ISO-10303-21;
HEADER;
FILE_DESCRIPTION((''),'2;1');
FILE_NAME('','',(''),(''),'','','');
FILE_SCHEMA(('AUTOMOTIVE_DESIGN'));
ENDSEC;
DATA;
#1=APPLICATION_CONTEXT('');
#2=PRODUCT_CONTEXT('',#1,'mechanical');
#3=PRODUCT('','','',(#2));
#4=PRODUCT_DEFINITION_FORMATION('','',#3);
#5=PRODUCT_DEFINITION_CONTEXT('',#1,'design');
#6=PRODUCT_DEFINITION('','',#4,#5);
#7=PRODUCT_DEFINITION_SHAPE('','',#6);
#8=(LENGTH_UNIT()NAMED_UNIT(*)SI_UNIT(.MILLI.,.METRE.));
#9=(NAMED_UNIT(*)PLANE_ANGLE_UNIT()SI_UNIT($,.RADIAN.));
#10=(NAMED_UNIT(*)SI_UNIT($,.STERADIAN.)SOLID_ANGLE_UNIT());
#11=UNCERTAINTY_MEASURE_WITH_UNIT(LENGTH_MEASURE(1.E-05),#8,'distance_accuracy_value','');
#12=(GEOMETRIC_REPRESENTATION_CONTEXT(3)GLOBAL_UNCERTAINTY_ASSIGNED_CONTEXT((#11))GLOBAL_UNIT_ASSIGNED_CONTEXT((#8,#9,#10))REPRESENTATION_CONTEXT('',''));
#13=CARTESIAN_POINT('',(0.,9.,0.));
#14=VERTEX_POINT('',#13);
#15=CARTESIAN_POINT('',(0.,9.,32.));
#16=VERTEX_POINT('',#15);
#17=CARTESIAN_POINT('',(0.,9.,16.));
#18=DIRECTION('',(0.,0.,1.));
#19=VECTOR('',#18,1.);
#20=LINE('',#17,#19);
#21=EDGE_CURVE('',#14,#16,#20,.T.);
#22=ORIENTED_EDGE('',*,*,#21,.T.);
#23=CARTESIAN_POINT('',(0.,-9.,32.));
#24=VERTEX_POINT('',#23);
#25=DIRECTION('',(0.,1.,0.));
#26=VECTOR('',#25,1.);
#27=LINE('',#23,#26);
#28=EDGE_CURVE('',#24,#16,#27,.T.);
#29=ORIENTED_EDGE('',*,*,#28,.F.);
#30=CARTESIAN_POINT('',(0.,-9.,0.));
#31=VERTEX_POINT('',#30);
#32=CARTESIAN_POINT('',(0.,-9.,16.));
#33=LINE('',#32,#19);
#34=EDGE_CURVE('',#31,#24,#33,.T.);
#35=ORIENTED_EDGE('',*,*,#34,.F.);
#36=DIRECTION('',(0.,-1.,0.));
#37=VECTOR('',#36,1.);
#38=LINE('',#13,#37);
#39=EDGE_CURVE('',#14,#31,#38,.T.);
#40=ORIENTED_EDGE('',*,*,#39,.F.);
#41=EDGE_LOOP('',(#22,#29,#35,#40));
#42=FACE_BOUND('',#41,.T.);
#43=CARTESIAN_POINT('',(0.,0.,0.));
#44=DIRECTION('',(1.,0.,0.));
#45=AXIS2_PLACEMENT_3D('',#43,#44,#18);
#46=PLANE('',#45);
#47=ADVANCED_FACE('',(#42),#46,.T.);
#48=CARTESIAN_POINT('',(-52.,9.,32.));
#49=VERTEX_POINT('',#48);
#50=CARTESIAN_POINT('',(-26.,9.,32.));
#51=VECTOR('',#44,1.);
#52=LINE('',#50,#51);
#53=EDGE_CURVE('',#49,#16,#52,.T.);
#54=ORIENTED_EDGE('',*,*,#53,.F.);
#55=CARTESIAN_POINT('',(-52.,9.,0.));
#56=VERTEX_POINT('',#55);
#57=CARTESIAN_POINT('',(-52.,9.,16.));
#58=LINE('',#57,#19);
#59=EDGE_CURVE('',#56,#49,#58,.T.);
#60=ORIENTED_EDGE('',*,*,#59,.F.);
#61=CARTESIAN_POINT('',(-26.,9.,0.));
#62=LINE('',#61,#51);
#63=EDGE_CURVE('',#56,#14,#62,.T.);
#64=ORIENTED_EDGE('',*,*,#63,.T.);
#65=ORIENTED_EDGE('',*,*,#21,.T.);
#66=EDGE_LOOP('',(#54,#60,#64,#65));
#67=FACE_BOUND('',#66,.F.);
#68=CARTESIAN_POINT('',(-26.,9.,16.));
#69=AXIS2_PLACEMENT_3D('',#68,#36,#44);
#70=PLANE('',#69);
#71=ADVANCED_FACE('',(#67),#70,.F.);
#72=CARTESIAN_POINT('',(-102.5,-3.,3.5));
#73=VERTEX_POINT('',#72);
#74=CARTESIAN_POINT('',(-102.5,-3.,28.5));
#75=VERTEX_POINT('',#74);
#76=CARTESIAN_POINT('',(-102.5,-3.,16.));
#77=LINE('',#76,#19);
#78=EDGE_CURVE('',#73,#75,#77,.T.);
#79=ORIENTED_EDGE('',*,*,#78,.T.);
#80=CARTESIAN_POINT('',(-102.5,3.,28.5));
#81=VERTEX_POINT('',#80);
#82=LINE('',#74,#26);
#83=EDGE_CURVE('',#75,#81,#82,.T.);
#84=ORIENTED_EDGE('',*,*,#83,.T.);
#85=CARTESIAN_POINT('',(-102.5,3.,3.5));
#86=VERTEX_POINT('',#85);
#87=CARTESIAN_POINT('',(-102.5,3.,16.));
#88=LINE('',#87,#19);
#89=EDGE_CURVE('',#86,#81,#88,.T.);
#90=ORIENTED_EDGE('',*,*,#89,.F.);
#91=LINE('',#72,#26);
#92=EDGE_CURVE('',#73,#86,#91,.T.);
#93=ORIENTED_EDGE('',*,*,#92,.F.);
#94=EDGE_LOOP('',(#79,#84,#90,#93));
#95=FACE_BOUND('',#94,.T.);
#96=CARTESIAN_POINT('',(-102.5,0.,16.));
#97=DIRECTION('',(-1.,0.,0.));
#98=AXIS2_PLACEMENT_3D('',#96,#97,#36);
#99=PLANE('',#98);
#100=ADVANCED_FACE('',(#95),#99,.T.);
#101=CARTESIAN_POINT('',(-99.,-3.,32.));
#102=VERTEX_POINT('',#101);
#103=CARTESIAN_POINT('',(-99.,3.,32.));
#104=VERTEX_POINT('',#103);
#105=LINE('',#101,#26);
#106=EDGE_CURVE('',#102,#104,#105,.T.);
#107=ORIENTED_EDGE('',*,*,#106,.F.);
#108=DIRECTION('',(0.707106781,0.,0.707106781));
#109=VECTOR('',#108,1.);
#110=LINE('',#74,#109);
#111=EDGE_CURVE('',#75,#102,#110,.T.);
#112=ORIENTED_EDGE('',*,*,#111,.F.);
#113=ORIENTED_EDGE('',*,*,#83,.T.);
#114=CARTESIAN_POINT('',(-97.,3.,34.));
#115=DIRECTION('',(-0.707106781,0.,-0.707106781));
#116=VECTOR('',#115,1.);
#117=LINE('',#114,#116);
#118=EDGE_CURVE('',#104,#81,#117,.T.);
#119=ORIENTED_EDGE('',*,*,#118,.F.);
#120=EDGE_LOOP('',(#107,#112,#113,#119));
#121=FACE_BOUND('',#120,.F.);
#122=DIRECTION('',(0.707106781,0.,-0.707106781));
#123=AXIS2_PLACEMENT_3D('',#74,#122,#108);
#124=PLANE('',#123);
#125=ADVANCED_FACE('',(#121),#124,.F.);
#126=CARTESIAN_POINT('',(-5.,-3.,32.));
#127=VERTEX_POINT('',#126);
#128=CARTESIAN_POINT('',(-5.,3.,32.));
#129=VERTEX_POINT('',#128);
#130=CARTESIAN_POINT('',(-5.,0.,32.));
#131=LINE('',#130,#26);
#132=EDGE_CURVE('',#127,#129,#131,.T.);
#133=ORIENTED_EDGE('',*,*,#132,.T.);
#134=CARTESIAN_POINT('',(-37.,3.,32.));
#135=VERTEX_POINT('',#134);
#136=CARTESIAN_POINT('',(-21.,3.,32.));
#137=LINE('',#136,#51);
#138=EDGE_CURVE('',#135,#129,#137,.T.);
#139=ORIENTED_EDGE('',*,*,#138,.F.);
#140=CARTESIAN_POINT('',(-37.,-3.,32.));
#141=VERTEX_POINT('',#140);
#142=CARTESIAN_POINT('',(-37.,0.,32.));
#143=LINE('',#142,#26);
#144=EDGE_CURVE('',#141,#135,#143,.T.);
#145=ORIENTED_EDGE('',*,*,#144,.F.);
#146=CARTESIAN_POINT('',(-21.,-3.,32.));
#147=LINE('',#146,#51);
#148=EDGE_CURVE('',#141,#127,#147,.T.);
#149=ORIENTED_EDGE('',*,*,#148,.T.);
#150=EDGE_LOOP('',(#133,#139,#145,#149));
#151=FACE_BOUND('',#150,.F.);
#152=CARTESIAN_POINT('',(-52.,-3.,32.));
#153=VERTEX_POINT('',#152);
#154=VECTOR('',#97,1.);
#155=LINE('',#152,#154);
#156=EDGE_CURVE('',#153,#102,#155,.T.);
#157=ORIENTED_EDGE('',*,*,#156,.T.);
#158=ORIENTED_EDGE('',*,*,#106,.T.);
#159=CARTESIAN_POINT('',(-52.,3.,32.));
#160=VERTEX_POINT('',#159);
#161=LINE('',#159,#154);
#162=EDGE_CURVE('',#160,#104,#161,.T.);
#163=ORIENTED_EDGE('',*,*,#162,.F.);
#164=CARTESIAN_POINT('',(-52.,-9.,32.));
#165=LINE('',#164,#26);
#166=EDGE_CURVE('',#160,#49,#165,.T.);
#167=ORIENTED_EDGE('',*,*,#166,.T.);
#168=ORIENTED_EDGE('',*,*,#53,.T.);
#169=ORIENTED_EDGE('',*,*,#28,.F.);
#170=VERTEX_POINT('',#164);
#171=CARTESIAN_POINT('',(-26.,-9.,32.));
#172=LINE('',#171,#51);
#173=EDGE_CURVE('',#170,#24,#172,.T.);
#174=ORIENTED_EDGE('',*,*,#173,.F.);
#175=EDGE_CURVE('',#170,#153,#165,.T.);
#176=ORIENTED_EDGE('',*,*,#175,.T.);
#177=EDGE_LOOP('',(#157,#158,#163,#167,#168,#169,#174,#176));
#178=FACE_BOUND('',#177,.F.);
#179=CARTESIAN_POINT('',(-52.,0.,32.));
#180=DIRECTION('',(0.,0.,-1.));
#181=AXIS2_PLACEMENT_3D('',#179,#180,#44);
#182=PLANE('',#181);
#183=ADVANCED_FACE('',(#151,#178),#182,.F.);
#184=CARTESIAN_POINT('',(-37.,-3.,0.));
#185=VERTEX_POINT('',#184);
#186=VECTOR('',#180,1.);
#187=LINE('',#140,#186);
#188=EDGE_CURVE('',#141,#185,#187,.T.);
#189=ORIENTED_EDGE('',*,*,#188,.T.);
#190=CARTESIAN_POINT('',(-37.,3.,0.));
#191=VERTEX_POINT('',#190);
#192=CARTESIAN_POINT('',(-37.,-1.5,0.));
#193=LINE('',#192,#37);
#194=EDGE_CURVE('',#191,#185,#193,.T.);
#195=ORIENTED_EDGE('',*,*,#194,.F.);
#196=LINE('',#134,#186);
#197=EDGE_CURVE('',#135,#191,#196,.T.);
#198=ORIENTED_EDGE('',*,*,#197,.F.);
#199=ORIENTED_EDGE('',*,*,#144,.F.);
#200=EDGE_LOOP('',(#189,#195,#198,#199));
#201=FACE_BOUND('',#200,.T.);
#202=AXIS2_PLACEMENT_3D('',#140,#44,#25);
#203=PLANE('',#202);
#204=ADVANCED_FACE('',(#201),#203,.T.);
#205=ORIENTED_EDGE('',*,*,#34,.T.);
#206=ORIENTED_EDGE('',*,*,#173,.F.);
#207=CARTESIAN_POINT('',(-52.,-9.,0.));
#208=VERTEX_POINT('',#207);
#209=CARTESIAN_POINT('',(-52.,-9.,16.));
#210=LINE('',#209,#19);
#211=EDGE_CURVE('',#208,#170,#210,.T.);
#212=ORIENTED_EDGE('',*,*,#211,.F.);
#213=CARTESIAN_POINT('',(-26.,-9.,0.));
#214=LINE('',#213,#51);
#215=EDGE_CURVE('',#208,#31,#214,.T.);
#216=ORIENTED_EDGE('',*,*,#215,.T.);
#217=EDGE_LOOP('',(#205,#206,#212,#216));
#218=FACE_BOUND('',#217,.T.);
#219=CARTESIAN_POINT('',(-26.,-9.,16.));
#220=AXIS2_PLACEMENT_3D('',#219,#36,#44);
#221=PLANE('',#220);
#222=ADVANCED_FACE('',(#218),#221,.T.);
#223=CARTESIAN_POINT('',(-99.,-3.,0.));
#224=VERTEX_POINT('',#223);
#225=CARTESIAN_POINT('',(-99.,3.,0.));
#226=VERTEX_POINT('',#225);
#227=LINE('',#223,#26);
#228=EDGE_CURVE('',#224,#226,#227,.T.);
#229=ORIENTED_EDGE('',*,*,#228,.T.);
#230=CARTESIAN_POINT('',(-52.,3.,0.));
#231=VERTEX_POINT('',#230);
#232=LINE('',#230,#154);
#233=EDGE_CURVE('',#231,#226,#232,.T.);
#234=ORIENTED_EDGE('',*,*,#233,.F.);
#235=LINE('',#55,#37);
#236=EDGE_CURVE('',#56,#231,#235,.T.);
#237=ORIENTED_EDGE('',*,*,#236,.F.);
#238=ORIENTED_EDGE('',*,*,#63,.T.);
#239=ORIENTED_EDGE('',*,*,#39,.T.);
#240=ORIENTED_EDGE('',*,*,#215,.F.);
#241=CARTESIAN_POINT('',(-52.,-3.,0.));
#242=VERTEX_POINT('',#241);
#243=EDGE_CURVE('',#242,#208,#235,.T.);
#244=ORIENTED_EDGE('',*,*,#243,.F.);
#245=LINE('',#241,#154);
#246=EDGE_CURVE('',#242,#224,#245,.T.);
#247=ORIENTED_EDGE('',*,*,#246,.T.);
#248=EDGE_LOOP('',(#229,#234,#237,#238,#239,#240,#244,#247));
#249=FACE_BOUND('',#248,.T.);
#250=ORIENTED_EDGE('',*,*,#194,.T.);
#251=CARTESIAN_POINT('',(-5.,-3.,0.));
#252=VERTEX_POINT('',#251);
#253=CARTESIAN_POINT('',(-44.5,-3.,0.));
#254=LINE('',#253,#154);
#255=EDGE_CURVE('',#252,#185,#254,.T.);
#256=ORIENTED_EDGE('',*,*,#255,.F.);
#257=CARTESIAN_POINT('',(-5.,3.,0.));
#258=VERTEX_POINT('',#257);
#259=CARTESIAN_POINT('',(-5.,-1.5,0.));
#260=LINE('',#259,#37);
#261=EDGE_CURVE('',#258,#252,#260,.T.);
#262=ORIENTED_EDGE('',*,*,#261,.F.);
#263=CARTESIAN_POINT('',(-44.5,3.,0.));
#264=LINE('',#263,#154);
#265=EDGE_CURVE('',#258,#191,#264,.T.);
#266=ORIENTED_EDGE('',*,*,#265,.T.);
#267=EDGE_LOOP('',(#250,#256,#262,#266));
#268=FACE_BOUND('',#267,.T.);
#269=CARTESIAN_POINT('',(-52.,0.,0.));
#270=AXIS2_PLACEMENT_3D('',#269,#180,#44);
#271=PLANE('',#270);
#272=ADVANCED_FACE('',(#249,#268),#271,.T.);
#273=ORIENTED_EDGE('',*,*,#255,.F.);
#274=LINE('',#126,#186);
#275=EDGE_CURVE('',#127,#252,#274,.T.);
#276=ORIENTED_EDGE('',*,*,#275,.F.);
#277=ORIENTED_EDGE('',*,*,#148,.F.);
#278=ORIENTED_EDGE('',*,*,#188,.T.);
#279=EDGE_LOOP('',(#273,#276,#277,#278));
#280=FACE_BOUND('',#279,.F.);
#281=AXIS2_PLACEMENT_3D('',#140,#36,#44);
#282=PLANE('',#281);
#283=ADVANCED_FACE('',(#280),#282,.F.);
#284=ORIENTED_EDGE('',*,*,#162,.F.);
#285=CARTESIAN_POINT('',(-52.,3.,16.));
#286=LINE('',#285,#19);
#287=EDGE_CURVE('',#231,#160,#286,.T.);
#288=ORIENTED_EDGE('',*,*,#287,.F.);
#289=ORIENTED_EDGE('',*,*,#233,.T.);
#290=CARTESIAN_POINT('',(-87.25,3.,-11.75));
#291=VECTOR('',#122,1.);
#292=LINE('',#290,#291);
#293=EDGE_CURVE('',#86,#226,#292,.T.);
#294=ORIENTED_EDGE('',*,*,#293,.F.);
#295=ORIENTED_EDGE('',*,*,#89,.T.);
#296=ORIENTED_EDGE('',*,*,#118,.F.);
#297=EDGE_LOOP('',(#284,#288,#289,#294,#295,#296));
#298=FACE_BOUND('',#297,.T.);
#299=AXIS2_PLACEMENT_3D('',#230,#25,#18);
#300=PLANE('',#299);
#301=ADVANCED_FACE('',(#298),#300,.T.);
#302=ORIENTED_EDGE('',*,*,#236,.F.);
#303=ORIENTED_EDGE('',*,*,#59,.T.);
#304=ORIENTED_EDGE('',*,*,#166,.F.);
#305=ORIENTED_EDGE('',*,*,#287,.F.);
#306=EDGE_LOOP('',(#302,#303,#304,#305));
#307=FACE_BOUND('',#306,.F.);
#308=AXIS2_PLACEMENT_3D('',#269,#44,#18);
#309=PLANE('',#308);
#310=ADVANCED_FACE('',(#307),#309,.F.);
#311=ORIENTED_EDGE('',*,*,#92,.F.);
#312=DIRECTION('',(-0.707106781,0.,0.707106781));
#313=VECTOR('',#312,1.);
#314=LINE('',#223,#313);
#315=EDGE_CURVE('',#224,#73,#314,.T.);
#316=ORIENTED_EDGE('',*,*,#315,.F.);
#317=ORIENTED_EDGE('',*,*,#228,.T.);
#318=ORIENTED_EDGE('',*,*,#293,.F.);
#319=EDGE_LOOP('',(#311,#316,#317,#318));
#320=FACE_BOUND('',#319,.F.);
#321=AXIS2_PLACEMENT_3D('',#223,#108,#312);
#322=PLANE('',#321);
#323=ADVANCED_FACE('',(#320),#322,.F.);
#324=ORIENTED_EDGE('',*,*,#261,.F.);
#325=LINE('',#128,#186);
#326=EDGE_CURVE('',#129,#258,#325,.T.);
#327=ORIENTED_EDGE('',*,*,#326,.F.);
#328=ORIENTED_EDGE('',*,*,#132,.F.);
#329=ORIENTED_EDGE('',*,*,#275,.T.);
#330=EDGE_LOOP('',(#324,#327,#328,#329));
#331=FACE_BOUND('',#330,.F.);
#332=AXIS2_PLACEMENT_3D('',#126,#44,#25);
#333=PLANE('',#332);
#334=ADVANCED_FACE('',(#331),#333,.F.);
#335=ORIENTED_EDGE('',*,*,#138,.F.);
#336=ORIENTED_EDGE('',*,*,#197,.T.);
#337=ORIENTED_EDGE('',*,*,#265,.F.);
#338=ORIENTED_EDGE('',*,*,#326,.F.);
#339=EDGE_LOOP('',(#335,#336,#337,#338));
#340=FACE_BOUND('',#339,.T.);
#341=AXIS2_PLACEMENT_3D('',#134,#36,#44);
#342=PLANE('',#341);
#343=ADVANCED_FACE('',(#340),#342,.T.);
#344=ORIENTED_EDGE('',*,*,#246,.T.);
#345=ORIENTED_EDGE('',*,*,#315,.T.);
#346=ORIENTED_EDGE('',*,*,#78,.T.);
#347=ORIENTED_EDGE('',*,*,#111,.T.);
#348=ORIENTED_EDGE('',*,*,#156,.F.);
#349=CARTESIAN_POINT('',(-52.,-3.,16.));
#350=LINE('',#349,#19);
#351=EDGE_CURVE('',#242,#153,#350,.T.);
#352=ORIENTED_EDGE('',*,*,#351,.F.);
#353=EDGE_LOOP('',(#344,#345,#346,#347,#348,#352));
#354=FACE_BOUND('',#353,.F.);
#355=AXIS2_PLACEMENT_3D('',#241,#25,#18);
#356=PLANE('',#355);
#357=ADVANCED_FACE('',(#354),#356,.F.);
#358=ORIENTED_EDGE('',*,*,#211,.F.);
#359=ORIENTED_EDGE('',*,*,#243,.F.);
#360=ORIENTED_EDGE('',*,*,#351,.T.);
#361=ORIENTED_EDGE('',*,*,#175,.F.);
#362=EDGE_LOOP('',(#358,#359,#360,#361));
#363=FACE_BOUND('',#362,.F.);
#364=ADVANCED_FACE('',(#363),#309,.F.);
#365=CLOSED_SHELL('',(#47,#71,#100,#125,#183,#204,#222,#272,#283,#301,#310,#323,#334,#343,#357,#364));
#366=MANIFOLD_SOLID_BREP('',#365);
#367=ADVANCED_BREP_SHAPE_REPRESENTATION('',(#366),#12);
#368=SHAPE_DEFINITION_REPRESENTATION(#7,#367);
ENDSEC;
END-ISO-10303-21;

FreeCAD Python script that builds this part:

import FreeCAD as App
import Part
import Sketcher
Q = App.Units.Quantity

doc = App.newDocument("Part")
body = doc.addObject("PartDesign::Body", "Body")

sketch1 = doc.addObject("Sketcher::SketchObject", "Sketch")
body.addObject(sketch1)
sketch1.AttachmentSupport = (doc.XZ_Plane, [""])
sketch1.MapMode = "FlatFace"
sketch1.addGeometry([
    Part.LineSegment(App.Vector(-52, 32, 0), App.Vector(-52, 0, 0)),
    Part.LineSegment(App.Vector(-52, 0, 0), App.Vector(0, 0, 0)),
    Part.LineSegment(App.Vector(0, 0, 0), App.Vector(0, 32, 0)),
    Part.LineSegment(App.Vector(0, 32, 0), App.Vector(-52, 32, 0)),
], False)
sketch1.addConstraint([
    Sketcher.Constraint("Coincident", 0, 2, 1, 1),
    Sketcher.Constraint("Coincident", 1, 2, 2, 1),
    Sketcher.Constraint("Coincident", 2, 2, 3, 1),
    Sketcher.Constraint("Coincident", 3, 2, 0, 1),
    Sketcher.Constraint("Vertical", 0),
    Sketcher.Constraint("Horizontal", 1),
    Sketcher.Constraint("Vertical", 2),
    Sketcher.Constraint("Horizontal", 3),
    Sketcher.Constraint("Coincident", 1, 2, -1, 1),
    Sketcher.Constraint("DistanceX", 1, 1, 1, 2, Q("52 mm")),
    Sketcher.Constraint("DistanceY", 0, 2, 0, 1, Q("32 mm")),
])
pad1 = doc.addObject("PartDesign::Pad", "Pad")
body.addObject(pad1)
pad1.Profile = sketch1
pad1.Length = 18
pad1.Midplane = True

sketch2 = doc.addObject("Sketcher::SketchObject", "Sketch001")
body.addObject(sketch2)
sketch2.AttachmentSupport = (doc.XY_Plane, [""])
sketch2.MapMode = "FlatFace"
sketch2.AttachmentOffset = App.Placement(App.Vector(0, 0, 32), App.Rotation())
sketch2.addGeometry([
    Part.LineSegment(App.Vector(-37, 3, 0), App.Vector(-37, -3, 0)),
    Part.LineSegment(App.Vector(-37, -3, 0), App.Vector(-5, -3, 0)),
    Part.LineSegment(App.Vector(-5, -3, 0), App.Vector(-5, 3, 0)),
    Part.LineSegment(App.Vector(-5, 3, 0), App.Vector(-37, 3, 0)),
], False)
sketch2.addConstraint([
    Sketcher.Constraint("Coincident", 0, 2, 1, 1),
    Sketcher.Constraint("Coincident", 1, 2, 2, 1),
    Sketcher.Constraint("Coincident", 2, 2, 3, 1),
    Sketcher.Constraint("Coincident", 3, 2, 0, 1),
    Sketcher.Constraint("Vertical", 0),
    Sketcher.Constraint("Horizontal", 1),
    Sketcher.Constraint("Vertical", 2),
    Sketcher.Constraint("Horizontal", 3),
    Sketcher.Constraint("DistanceX", 1, 1, 1, 2, Q("32 mm")),
    Sketcher.Constraint("DistanceY", 0, 2, 0, 1, Q("6 mm")),
    Sketcher.Constraint("DistanceX", 0, 2, -1, 1, Q("37 mm")),
    Sketcher.Constraint("DistanceY", 0, 2, -1, 1, Q("3 mm")),
])
pocket1 = doc.addObject("PartDesign::Pocket", "Pocket")
body.addObject(pocket1)
pocket1.Profile = sketch2
pocket1.Type = "ThroughAll"

sketch3 = doc.addObject("Sketcher::SketchObject", "Sketch002")
body.addObject(sketch3)
sketch3.AttachmentSupport = (doc.YZ_Plane, [""])
sketch3.MapMode = "FlatFace"
sketch3.AttachmentOffset = App.Placement(App.Vector(0, 0, -52), App.Rotation())
sketch3.addGeometry([
    Part.LineSegment(App.Vector(3, 32, 0), App.Vector(3, 0, 0)),
    Part.LineSegment(App.Vector(3, 0, 0), App.Vector(-3, 0, 0)),
    Part.LineSegment(App.Vector(-3, 0, 0), App.Vector(-3, 32, 0)),
    Part.LineSegment(App.Vector(-3, 32, 0), App.Vector(3, 32, 0)),
], False)
sketch3.addConstraint([
    Sketcher.Constraint("Coincident", 0, 2, 1, 1),
    Sketcher.Constraint("Coincident", 1, 2, 2, 1),
    Sketcher.Constraint("Coincident", 2, 2, 3, 1),
    Sketcher.Constraint("Coincident", 3, 2, 0, 1),
    Sketcher.Constraint("Vertical", 0),
    Sketcher.Constraint("Horizontal", 1),
    Sketcher.Constraint("Vertical", 2),
    Sketcher.Constraint("Horizontal", 3),
    Sketcher.Constraint("Symmetric", 0, 2, 1, 2, -1, 1),
    Sketcher.Constraint("DistanceX", 1, 2, 1, 1, Q("6 mm")),
    Sketcher.Constraint("DistanceY", 0, 2, 0, 1, Q("32 mm")),
])
pad2 = doc.addObject("PartDesign::Pad", "Pad001")
body.addObject(pad2)
pad2.Profile = sketch3
pad2.Length = 50.5
pad2.Reversed = True

sketch4 = doc.addObject("Sketcher::SketchObject", "Sketch003")
body.addObject(sketch4)
sketch4.AttachmentSupport = (doc.XZ_Plane, [""])
sketch4.MapMode = "FlatFace"
sketch4.AttachmentOffset = App.Placement(App.Vector(0, 0, 3), App.Rotation())
sketch4.addGeometry([
    Part.LineSegment(App.Vector(-102.5, 28.5, 0), App.Vector(-99, 32, 0)),
    Part.LineSegment(App.Vector(-99, 32, 0), App.Vector(-102.5, 32, 0)),
    Part.LineSegment(App.Vector(-102.5, 32, 0), App.Vector(-102.5, 28.5, 0)),
    Part.LineSegment(App.Vector(-102.5, 0, 0), App.Vector(-99, 0, 0)),
    Part.LineSegment(App.Vector(-99, 0, 0), App.Vector(-102.5, 3.5, 0)),
    Part.LineSegment(App.Vector(-102.5, 3.5, 0), App.Vector(-102.5, 0, 0)),
], False)
sketch4.addConstraint([
    Sketcher.Constraint("Coincident", 0, 2, 1, 1),
    Sketcher.Constraint("Coincident", 1, 2, 2, 1),
    Sketcher.Constraint("Coincident", 2, 2, 0, 1),
    Sketcher.Constraint("Coincident", 3, 2, 4, 1),
    Sketcher.Constraint("Coincident", 4, 2, 5, 1),
    Sketcher.Constraint("Coincident", 5, 2, 3, 1),
    Sketcher.Constraint("Horizontal", 1),
    Sketcher.Constraint("Vertical", 2),
    Sketcher.Constraint("Horizontal", 3),
    Sketcher.Constraint("Vertical", 5),
    Sketcher.Constraint("PointOnObject", 3, 2, -1),
    Sketcher.Constraint("Perpendicular", 0, 4),
    Sketcher.Constraint("Vertical", 0, 2, 3, 2),
    Sketcher.Constraint("Vertical", 2, 2, 4, 2),
    Sketcher.Constraint("Equal", 3, 2),
    Sketcher.Constraint("DistanceX", 1, 2, 1, 1, Q("3.5 mm")),
    Sketcher.Constraint("DistanceX", 0, 2, -1, 1, Q("99 mm")),
    Sketcher.Constraint("DistanceY", -1, 1, 0, 2, Q("32 mm")),
])
pocket2 = doc.addObject("PartDesign::Pocket", "Pocket001")
body.addObject(pocket2)
pocket2.Profile = sketch4
pocket2.Type = "ThroughAll"

doc.recompute()
